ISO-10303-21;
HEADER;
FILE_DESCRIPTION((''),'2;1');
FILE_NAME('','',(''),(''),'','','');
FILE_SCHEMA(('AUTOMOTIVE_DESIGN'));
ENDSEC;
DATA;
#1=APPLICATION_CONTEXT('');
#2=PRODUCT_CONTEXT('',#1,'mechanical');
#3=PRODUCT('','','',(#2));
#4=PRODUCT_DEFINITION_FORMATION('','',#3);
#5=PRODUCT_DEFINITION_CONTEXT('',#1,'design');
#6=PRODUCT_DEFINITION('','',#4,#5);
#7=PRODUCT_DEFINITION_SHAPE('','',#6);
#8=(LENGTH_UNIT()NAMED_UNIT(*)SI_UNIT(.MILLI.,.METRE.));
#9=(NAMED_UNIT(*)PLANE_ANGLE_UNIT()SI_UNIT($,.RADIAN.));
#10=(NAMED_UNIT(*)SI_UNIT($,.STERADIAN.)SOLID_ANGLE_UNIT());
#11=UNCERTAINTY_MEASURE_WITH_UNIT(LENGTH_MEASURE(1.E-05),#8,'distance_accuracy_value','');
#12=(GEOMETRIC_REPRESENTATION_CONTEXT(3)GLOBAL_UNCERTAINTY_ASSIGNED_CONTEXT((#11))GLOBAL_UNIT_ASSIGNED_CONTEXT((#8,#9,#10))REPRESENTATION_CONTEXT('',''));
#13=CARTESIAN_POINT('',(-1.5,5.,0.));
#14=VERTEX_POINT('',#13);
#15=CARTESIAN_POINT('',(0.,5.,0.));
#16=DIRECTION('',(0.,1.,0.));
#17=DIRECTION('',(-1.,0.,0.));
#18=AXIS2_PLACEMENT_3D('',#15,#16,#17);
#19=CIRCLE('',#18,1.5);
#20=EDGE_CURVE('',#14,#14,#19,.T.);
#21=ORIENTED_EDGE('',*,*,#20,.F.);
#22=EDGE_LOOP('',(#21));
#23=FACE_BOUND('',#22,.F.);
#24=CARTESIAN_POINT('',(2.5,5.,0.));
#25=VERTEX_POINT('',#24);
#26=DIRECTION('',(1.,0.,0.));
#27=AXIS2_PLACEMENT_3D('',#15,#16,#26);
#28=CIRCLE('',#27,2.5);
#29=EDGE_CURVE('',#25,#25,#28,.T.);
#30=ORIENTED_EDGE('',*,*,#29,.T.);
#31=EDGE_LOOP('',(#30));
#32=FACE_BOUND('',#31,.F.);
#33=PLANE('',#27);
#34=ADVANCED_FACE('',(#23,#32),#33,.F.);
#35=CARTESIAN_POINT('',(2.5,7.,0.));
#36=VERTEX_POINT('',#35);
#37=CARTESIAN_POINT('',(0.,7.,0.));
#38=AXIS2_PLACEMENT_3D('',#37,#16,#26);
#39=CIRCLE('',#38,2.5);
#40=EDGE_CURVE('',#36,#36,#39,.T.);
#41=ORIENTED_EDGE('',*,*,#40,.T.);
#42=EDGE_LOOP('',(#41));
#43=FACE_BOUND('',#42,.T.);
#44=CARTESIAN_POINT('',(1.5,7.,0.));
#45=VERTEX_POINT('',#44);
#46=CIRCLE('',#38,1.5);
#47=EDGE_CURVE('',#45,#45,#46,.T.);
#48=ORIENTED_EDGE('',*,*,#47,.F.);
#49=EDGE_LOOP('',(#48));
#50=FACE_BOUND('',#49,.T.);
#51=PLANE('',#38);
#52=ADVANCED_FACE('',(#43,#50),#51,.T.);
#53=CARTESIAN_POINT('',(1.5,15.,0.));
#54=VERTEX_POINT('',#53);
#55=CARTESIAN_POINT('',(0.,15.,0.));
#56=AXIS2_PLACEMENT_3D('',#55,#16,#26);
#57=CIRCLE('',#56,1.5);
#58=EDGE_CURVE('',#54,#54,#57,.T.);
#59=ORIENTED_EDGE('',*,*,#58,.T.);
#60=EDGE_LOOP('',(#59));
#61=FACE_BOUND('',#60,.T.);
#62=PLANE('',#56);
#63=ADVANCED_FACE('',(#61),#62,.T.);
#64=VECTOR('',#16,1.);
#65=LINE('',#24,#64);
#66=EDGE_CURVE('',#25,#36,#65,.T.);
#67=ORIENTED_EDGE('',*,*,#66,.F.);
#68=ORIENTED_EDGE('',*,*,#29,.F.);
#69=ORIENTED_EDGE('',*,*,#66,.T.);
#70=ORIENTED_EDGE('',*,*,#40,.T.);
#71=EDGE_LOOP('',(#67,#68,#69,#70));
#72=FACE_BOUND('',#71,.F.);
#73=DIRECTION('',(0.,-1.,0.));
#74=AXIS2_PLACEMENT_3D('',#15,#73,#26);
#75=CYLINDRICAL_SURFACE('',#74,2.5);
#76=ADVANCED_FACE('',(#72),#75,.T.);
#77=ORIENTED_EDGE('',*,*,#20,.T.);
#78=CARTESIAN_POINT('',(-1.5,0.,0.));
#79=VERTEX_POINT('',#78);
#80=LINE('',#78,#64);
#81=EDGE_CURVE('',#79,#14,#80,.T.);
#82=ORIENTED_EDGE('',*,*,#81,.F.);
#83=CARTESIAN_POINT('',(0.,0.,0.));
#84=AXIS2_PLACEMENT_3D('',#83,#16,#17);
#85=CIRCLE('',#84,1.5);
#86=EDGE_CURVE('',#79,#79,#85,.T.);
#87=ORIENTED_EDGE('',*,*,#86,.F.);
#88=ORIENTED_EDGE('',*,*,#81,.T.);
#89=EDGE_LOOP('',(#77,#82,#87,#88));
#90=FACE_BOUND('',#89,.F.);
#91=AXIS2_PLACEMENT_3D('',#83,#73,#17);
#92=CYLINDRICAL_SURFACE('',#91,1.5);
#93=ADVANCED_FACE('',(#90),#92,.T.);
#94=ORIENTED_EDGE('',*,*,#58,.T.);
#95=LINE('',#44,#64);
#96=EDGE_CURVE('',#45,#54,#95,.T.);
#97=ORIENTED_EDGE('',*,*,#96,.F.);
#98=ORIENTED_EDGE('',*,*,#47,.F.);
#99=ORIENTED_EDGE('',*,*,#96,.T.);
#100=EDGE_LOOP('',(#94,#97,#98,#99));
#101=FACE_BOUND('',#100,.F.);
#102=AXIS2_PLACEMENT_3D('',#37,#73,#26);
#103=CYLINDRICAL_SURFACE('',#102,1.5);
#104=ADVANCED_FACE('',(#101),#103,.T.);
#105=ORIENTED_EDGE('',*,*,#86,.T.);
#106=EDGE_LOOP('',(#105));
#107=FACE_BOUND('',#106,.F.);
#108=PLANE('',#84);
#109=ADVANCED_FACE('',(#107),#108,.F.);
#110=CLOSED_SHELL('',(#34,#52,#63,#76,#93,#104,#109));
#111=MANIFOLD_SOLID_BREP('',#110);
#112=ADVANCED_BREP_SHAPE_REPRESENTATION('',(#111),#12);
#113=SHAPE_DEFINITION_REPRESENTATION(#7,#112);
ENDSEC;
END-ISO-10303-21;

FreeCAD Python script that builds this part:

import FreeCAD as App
import Part
import Sketcher
Q = App.Units.Quantity

doc = App.newDocument("Part")
params = doc.addObject("Spreadsheet::Sheet", "Params")
for row, (alias, value) in enumerate([
    ("sketch1_diameter", "3 mm"),
    ("pad1_length", "5 mm"),
    ("sketch2_diameter", "5 mm"),
    ("pad2_length", "2 mm"),
    ("sketch3_diameter", "3 mm"),
    ("pad3_length", "8 mm"),
], start=1):
    params.set(f"A{row}", alias)
    params.set(f"B{row}", "=" + value)
    params.setAlias(f"B{row}", alias)

body = doc.addObject("PartDesign::Body", "Body")

sketch1 = body.newObject("Sketcher::SketchObject", "Sketch")
sketch1.AttachmentSupport = (doc.getObject("XZ_Plane"), [""])
sketch1.MapMode = "FlatFace"
sketch1.addGeometry(Part.Circle(App.Vector(0, 0, 0), App.Vector(0, 0, 1), 1.5), False)
sketch1.addConstraint([
    Sketcher.Constraint("Coincident", 0, 3, -1, 1),
    Sketcher.Constraint("Diameter", 0, Q("3 mm")),
])
sketch1.setExpression("Constraints[1]", "Params.sketch1_diameter")
pad1 = body.newObject("PartDesign::Pad", "Pad")
pad1.Profile = sketch1
pad1.setExpression("Length", "Params.pad1_length")
pad1.Reversed = True

sketch2 = body.newObject("Sketcher::SketchObject", "Sketch001")
sketch2.AttachmentSupport = (doc.getObject("XZ_Plane"), [""])
sketch2.MapMode = "FlatFace"
sketch2.AttachmentOffset = App.Placement(App.Vector(0, 0, -5), App.Rotation())
sketch2.addGeometry(Part.Circle(App.Vector(0, 0, 0), App.Vector(0, 0, 1), 2.5), False)
sketch2.addConstraint([
    Sketcher.Constraint("Coincident", 0, 3, -1, 1),
    Sketcher.Constraint("Diameter", 0, Q("5 mm")),
])
sketch2.setExpression("Constraints[1]", "Params.sketch2_diameter")
pad2 = body.newObject("PartDesign::Pad", "Pad001")
pad2.Profile = sketch2
pad2.setExpression("Length", "Params.pad2_length")
pad2.Reversed = True

sketch3 = body.newObject("Sketcher::SketchObject", "Sketch002")
sketch3.AttachmentSupport = (doc.getObject("XZ_Plane"), [""])
sketch3.MapMode = "FlatFace"
sketch3.AttachmentOffset = App.Placement(App.Vector(0, 0, -7), App.Rotation())
sketch3.addGeometry(Part.Circle(App.Vector(0, 0, 0), App.Vector(0, 0, 1), 1.5), False)
sketch3.addConstraint([
    Sketcher.Constraint("Coincident", 0, 3, -1, 1),
    Sketcher.Constraint("Diameter", 0, Q("3 mm")),
])
sketch3.setExpression("Constraints[1]", "Params.sketch3_diameter")
pad3 = body.newObject("PartDesign::Pad", "Pad002")
pad3.Profile = sketch3
pad3.setExpression("Length", "Params.pad3_length")
pad3.Reversed = True

doc.recompute()
